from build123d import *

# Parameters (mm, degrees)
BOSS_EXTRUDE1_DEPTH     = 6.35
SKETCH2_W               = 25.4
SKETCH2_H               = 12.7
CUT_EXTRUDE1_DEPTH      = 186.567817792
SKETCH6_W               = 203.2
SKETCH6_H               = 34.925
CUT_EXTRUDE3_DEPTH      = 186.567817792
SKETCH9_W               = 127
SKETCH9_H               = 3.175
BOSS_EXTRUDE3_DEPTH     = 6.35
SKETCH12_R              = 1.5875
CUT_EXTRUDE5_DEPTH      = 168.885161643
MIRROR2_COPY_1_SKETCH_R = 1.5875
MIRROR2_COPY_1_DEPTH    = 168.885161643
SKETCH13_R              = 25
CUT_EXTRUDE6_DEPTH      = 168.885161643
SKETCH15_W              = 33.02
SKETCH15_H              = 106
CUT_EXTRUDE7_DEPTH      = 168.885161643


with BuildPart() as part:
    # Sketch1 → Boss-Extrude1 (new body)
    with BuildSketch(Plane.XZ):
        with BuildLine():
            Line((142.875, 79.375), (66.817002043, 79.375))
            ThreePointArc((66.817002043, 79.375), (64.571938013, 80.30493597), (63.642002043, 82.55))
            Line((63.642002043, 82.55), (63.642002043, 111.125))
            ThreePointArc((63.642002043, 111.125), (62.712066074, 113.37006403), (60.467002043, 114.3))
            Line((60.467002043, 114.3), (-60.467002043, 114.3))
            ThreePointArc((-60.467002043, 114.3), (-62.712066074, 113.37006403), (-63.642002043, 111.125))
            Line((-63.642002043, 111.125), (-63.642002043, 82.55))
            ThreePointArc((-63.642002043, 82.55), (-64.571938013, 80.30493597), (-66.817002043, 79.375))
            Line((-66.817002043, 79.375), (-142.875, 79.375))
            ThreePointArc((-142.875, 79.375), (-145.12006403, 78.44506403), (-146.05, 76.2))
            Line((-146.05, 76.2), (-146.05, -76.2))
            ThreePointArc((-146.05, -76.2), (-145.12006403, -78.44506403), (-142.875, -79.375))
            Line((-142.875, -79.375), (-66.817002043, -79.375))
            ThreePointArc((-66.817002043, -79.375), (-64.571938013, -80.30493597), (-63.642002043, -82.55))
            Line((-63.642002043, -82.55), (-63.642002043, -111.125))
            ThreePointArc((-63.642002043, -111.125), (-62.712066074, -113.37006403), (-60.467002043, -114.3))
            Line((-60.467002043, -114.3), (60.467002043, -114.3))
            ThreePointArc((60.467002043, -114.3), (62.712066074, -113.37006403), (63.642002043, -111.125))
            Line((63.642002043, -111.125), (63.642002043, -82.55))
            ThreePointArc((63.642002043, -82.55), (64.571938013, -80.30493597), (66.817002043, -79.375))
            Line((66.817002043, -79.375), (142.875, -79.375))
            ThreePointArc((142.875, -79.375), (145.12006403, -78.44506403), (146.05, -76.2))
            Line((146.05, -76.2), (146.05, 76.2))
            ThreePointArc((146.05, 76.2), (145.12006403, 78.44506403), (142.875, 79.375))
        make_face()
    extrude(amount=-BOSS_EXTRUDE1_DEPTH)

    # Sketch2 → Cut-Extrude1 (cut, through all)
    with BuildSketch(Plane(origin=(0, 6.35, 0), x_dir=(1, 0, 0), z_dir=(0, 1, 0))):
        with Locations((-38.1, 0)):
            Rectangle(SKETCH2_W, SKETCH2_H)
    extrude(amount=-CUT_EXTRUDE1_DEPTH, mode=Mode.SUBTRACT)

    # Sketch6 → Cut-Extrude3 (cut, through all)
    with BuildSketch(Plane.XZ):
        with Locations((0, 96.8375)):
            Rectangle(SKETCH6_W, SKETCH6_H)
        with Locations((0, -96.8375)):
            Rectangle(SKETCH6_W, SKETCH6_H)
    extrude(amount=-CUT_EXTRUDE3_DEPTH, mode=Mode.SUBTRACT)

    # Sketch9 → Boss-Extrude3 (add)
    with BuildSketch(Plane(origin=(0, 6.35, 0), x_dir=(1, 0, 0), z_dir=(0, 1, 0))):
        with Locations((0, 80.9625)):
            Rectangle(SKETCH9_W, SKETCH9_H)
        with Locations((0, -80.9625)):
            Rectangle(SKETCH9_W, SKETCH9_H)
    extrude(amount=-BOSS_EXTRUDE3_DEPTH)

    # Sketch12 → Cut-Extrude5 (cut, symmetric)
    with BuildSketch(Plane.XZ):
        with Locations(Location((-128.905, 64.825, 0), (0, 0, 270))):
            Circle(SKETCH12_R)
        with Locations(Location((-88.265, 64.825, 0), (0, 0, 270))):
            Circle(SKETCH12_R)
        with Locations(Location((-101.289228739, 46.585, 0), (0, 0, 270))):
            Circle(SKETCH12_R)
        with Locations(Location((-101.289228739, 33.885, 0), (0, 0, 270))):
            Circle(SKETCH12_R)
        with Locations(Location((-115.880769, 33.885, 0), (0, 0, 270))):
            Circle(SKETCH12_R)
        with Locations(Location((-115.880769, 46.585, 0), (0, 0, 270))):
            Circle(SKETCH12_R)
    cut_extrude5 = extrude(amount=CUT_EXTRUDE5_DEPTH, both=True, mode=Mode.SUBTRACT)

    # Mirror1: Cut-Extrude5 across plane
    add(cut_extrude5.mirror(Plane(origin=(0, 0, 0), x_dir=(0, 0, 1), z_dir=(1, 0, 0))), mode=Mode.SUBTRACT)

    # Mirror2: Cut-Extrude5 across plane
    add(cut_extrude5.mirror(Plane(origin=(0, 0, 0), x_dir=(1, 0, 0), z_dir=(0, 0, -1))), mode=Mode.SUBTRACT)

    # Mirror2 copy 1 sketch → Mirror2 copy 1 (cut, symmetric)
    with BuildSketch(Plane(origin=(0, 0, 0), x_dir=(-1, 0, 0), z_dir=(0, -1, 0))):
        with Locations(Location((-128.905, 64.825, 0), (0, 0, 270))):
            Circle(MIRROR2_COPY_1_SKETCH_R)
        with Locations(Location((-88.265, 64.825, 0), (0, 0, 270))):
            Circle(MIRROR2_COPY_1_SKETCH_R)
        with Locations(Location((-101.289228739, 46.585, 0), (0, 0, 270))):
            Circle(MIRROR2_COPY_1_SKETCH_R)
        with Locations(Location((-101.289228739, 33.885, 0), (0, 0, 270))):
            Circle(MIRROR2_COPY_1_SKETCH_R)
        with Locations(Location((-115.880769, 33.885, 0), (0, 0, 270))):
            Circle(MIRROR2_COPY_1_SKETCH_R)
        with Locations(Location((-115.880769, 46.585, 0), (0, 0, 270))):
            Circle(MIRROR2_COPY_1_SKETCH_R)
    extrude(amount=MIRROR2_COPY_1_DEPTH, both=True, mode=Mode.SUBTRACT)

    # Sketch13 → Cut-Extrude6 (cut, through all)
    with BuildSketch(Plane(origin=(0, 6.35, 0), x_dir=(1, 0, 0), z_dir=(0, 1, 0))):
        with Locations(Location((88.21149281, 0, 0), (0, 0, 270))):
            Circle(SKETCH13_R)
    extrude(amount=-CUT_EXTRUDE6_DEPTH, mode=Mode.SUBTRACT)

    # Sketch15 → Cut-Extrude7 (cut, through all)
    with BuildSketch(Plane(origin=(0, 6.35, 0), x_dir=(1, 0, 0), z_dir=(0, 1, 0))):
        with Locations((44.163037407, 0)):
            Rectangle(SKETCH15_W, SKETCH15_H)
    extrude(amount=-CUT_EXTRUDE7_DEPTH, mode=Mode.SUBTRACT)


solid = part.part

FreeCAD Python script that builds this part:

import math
import FreeCAD as App
import Part
import Sketcher
Q = App.Units.Quantity

doc = App.newDocument("Part")
body = doc.addObject("PartDesign::Body", "Body")

sketch1 = body.newObject("Sketcher::SketchObject", "Sketch")
sketch1.AttachmentSupport = (doc.getObject("XZ_Plane"), [""])
sketch1.MapMode = "FlatFace"
sketch1.addGeometry([
    Part.LineSegment(App.Vector(142.9, 79.4, 0), App.Vector(66.8, 79.4, 0)),
    Part.ArcOfCircle(Part.Circle(App.Vector(66.8, 82.6, 0), App.Vector(0, 0, 1), 3.2), math.radians(-180), math.radians(-90)),
    Part.LineSegment(App.Vector(63.6, 82.5, 0), App.Vector(63.6, 111.1, 0)),
    Part.ArcOfCircle(Part.Circle(App.Vector(60.5, 111.1, 0), App.Vector(0, 0, 1), 3.2), math.radians(0), math.radians(90)),
    Part.LineSegment(App.Vector(60.5, 114.3, 0), App.Vector(-60.5, 114.3, 0)),
    Part.ArcOfCircle(Part.Circle(App.Vector(-60.5, 111.1, 0), App.Vector(0, 0, 1), 3.2), math.radians(90), math.radians(180)),
    Part.LineSegment(App.Vector(-63.6, 111.1, 0), App.Vector(-63.6, 82.5, 0)),
    Part.ArcOfCircle(Part.Circle(App.Vector(-66.8, 82.6, 0), App.Vector(0, 0, 1), 3.2), math.radians(-90), math.radians(0)),
    Part.LineSegment(App.Vector(-66.8, 79.4, 0), App.Vector(-142.9, 79.4, 0)),
    Part.ArcOfCircle(Part.Circle(App.Vector(-142.9, 76.2, 0), App.Vector(0, 0, 1), 3.2), math.radians(90), math.radians(180)),
    Part.LineSegment(App.Vector(-146.1, 76.2, 0), App.Vector(-146.1, -76.2, 0)),
    Part.ArcOfCircle(Part.Circle(App.Vector(-142.9, -76.2, 0), App.Vector(0, 0, 1), 3.2), math.radians(-180), math.radians(-90)),
    Part.LineSegment(App.Vector(-142.9, -79.4, 0), App.Vector(-66.8, -79.4, 0)),
    Part.ArcOfCircle(Part.Circle(App.Vector(-66.8, -82.6, 0), App.Vector(0, 0, 1), 3.2), math.radians(0), math.radians(90)),
    Part.LineSegment(App.Vector(-63.6, -82.5, 0), App.Vector(-63.6, -111.1, 0)),
    Part.ArcOfCircle(Part.Circle(App.Vector(-60.5, -111.1, 0), App.Vector(0, 0, 1), 3.2), math.radians(180), math.radians(270)),
    Part.LineSegment(App.Vector(-60.5, -114.3, 0), App.Vector(60.5, -114.3, 0)),
    Part.ArcOfCircle(Part.Circle(App.Vector(60.5, -111.1, 0), App.Vector(0, 0, 1), 3.2), math.radians(-90), math.radians(0)),
    Part.LineSegment(App.Vector(63.6, -111.1, 0), App.Vector(63.6, -82.5, 0)),
    Part.ArcOfCircle(Part.Circle(App.Vector(66.8, -82.6, 0), App.Vector(0, 0, 1), 3.2), math.radians(90), math.radians(180)),
    Part.LineSegment(App.Vector(66.8, -79.4, 0), App.Vector(142.9, -79.4, 0)),
    Part.ArcOfCircle(Part.Circle(App.Vector(142.9, -76.2, 0), App.Vector(0, 0, 1), 3.2), math.radians(-90), math.radians(0)),
    Part.LineSegment(App.Vector(146.1, -76.2, 0), App.Vector(146.1, 76.2, 0)),
    Part.ArcOfCircle(Part.Circle(App.Vector(142.9, 76.2, 0), App.Vector(0, 0, 1), 3.2), math.radians(0), math.radians(90)),
], False)
sketch1.addConstraint([
    Sketcher.Constraint("Tangent", 0, 2, 1, 2),
    Sketcher.Constraint("Tangent", 1, 1, 2, 1),
    Sketcher.Constraint("Tangent", 2, 2, 3, 1),
    Sketcher.Constraint("Tangent", 3, 2, 4, 1),
    Sketcher.Constraint("Tangent", 4, 2, 5, 1),
    Sketcher.Constraint("Tangent", 5, 2, 6, 1),
    Sketcher.Constraint("Tangent", 6, 2, 7, 2),
    Sketcher.Constraint("Tangent", 7, 1, 8, 1),
    Sketcher.Constraint("Tangent", 8, 2, 9, 1),
    Sketcher.Constraint("Tangent", 9, 2, 10, 1),
    Sketcher.Constraint("Tangent", 10, 2, 11, 1),
    Sketcher.Constraint("Tangent", 11, 2, 12, 1),
    Sketcher.Constraint("Tangent", 12, 2, 13, 2),
    Sketcher.Constraint("Tangent", 13, 1, 14, 1),
    Sketcher.Constraint("Tangent", 14, 2, 15, 1),
    Sketcher.Constraint("Tangent", 15, 2, 16, 1),
    Sketcher.Constraint("Tangent", 16, 2, 17, 1),
    Sketcher.Constraint("Tangent", 17, 2, 18, 1),
    Sketcher.Constraint("Tangent", 18, 2, 19, 2),
    Sketcher.Constraint("Tangent", 19, 1, 20, 1),
    Sketcher.Constraint("Tangent", 20, 2, 21, 1),
    Sketcher.Constraint("Tangent", 21, 2, 22, 1),
    Sketcher.Constraint("Tangent", 22, 2, 23, 1),
    Sketcher.Constraint("Tangent", 23, 2, 0, 1),
    Sketcher.Constraint("Horizontal", 0),
    Sketcher.Constraint("Vertical", 2),
    Sketcher.Constraint("Horizontal", 4),
    Sketcher.Constraint("Vertical", 6),
    Sketcher.Constraint("Horizontal", 8),
    Sketcher.Constraint("Vertical", 10),
    Sketcher.Constraint("Horizontal", 12),
    Sketcher.Constraint("Vertical", 14),
    Sketcher.Constraint("Horizontal", 16),
    Sketcher.Constraint("Vertical", 18),
    Sketcher.Constraint("Horizontal", 20),
    Sketcher.Constraint("Vertical", 22),
    Sketcher.Constraint("Equal", 1, 3),
    Sketcher.Constraint("Equal", 3, 5),
    Sketcher.Constraint("Equal", 5, 7),
    Sketcher.Constraint("Equal", 7, 9),
    Sketcher.Constraint("Equal", 9, 11),
    Sketcher.Constraint("Equal", 11, 13),
    Sketcher.Constraint("Equal", 13, 15),
    Sketcher.Constraint("Equal", 15, 17),
    Sketcher.Constraint("Equal", 17, 19),
    Sketcher.Constraint("Equal", 19, 21),
    Sketcher.Constraint("Equal", 21, 23),
    Sketcher.Constraint("Symmetric", 1, 3, 13, 3, -1, 1),
    Sketcher.Constraint("Symmetric", 5, 3, 17, 3, -1, 1),
    Sketcher.Constraint("Symmetric", 9, 3, 21, 3, -1, 1),
    Sketcher.Constraint("Symmetric", 1, 3, 7, 3, -2),
    Sketcher.Constraint("DistanceY", 10, 2, 10, 1, Q("6 in")),
    Sketcher.Constraint("Radius", 1, Q("0.125 in")),
    Sketcher.Constraint("DistanceY", -1, 1, 3, 2, Q("4.5 in")),
    Sketcher.Constraint("DistanceX", 9, 2, -1, 1, Q("5.75 in")),
    Sketcher.Constraint("DistanceX", 0, 2, 0, 1, Q("76.057998 mm")),
])
pad1 = body.newObject("PartDesign::Pad", "Pad")
pad1.Profile = sketch1
pad1.Length = Q("0.25 in")
pad1.Reversed = True

sketch2 = body.newObject("Sketcher::SketchObject", "Sketch001")
sketch2.AttachmentSupport = (doc.getObject("XZ_Plane"), [""])
sketch2.MapMode = "FlatFace"
sketch2.AttachmentOffset = App.Placement(App.Vector(0, 0, -0.25 * 25.4), App.Rotation())
sketch2.addGeometry([
    Part.LineSegment(App.Vector(-51, -6, 0), App.Vector(-51, 6, 0)),
    Part.LineSegment(App.Vector(-51, 6, 0), App.Vector(-25, 6, 0)),
    Part.LineSegment(App.Vector(-25, 6, 0), App.Vector(-25, -6, 0)),
    Part.LineSegment(App.Vector(-25, -6, 0), App.Vector(-51, -6, 0)),
], False)
sketch2.addConstraint([
    Sketcher.Constraint("Coincident", 0, 2, 1, 1),
    Sketcher.Constraint("Coincident", 1, 2, 2, 1),
    Sketcher.Constraint("Coincident", 2, 2, 3, 1),
    Sketcher.Constraint("Coincident", 3, 2, 0, 1),
    Sketcher.Constraint("Vertical", 0),
    Sketcher.Constraint("Horizontal", 1),
    Sketcher.Constraint("Vertical", 2),
    Sketcher.Constraint("Horizontal", 3),
    Sketcher.Constraint("DistanceX", 1, 1, 1, 2, Q("1 in")),
    Sketcher.Constraint("DistanceY", 0, 1, 0, 2, Q("0.5 in")),
    Sketcher.Constraint("DistanceX", 0, 2, -1, 1, Q("2 in")),
    Sketcher.Constraint("DistanceY", -1, 1, 0, 2, Q("0.25 in")),
])
pocket1 = body.newObject("PartDesign::Pocket", "Pocket")
pocket1.Profile = sketch2
pocket1.Type = "ThroughAll"
pocket1.Reversed = True

sketch3 = body.newObject("Sketcher::SketchObject", "Sketch002")
sketch3.AttachmentSupport = (doc.getObject("XZ_Plane"), [""])
sketch3.MapMode = "FlatFace"
sketch3.addGeometry([
    Part.LineSegment(App.Vector(-102, 114, 0), App.Vector(-102, 79, 0)),
    Part.LineSegment(App.Vector(-102, 79, 0), App.Vector(102, 79, 0)),
    Part.LineSegment(App.Vector(102, 79, 0), App.Vector(102, 114, 0)),
    Part.LineSegment(App.Vector(102, 114, 0), App.Vector(-102, 114, 0)),
    Part.LineSegment(App.Vector(-102, -79, 0), App.Vector(-102, -114, 0)),
    Part.LineSegment(App.Vector(-102, -114, 0), App.Vector(102, -114, 0)),
    Part.LineSegment(App.Vector(102, -114, 0), App.Vector(102, -79, 0)),
    Part.LineSegment(App.Vector(102, -79, 0), App.Vector(-102, -79, 0)),
], False)
sketch3.addConstraint([
    Sketcher.Constraint("Coincident", 0, 2, 1, 1),
    Sketcher.Constraint("Coincident", 1, 2, 2, 1),
    Sketcher.Constraint("Coincident", 2, 2, 3, 1),
    Sketcher.Constraint("Coincident", 3, 2, 0, 1),
    Sketcher.Constraint("Coincident", 4, 2, 5, 1),
    Sketcher.Constraint("Coincident", 5, 2, 6, 1),
    Sketcher.Constraint("Coincident", 6, 2, 7, 1),
    Sketcher.Constraint("Coincident", 7, 2, 4, 1),
    Sketcher.Constraint("Vertical", 0),
    Sketcher.Constraint("Horizontal", 1),
    Sketcher.Constraint("Vertical", 2),
    Sketcher.Constraint("Horizontal", 3),
    Sketcher.Constraint("Vertical", 4),
    Sketcher.Constraint("Horizontal", 5),
    Sketcher.Constraint("Vertical", 6),
    Sketcher.Constraint("Horizontal", 7),
    Sketcher.Constraint("Symmetric", 2, 2, 4, 2, -1, 1),
    Sketcher.Constraint("Symmetric", 0, 2, 6, 2, -1, 1),
    Sketcher.Constraint("Vertical", 3, 2, 4, 2),
    Sketcher.Constraint("DistanceX", 1, 1, 1, 2, Q("8 in")),
    Sketcher.Constraint("DistanceY", 4, 2, 3, 2, Q("9 in")),
    Sketcher.Constraint("DistanceY", 0, 2, 0, 1, Q("1.375 in")),
])
pocket2 = body.newObject("PartDesign::Pocket", "Pocket001")
pocket2.Profile = sketch3
pocket2.Type = "ThroughAll"

sketch4 = body.newObject("Sketcher::SketchObject", "Sketch003")
sketch4.AttachmentSupport = (doc.getObject("XZ_Plane"), [""])
sketch4.MapMode = "FlatFace"
sketch4.AttachmentOffset = App.Placement(App.Vector(0, 0, -0.25 * 25.4), App.Rotation())
sketch4.addGeometry([
    Part.LineSegment(App.Vector(-63.5, -82.5, 0), App.Vector(-63.5, -79.4, 0)),
    Part.LineSegment(App.Vector(-63.5, -79.4, 0), App.Vector(63.5, -79.4, 0)),
    Part.LineSegment(App.Vector(63.5, -79.4, 0), App.Vector(63.5, -82.5, 0)),
    Part.LineSegment(App.Vector(63.5, -82.5, 0), App.Vector(-63.5, -82.5, 0)),
    Part.LineSegment(App.Vector(-63.5, 79.4, 0), App.Vector(-63.5, 82.5, 0)),
    Part.LineSegment(App.Vector(-63.5, 82.5, 0), App.Vector(63.5, 82.5, 0)),
    Part.LineSegment(App.Vector(63.5, 82.5, 0), App.Vector(63.5, 79.4, 0)),
    Part.LineSegment(App.Vector(63.5, 79.4, 0), App.Vector(-63.5, 79.4, 0)),
], False)
sketch4.addConstraint([
    Sketcher.Constraint("Coincident", 0, 2, 1, 1),
    Sketcher.Constraint("Coincident", 1, 2, 2, 1),
    Sketcher.Constraint("Coincident", 2, 2, 3, 1),
    Sketcher.Constraint("Coincident", 3, 2, 0, 1),
    Sketcher.Constraint("Coincident", 4, 2, 5, 1),
    Sketcher.Constraint("Coincident", 5, 2, 6, 1),
    Sketcher.Constraint("Coincident", 6, 2, 7, 1),
    Sketcher.Constraint("Coincident", 7, 2, 4, 1),
    Sketcher.Constraint("Vertical", 0),
    Sketcher.Constraint("Horizontal", 1),
    Sketcher.Constraint("Vertical", 2),
    Sketcher.Constraint("Horizontal", 3),
    Sketcher.Constraint("Vertical", 4),
    Sketcher.Constraint("Horizontal", 5),
    Sketcher.Constraint("Vertical", 6),
    Sketcher.Constraint("Horizontal", 7),
    Sketcher.Constraint("Symmetric", 2, 2, 4, 2, -1, 1),
    Sketcher.Constraint("Symmetric", 0, 2, 6, 2, -1, 1),
    Sketcher.Constraint("Vertical", 3, 2, 4, 2),
    Sketcher.Constraint("DistanceX", 1, 1, 1, 2, Q("5 in")),
    Sketcher.Constraint("DistanceY", 3, 2, 4, 2, Q("6.5 in")),
    Sketcher.Constraint("DistanceY", 0, 1, 0, 2, Q("0.125 in")),
])
pad2 = body.newObject("PartDesign::Pad", "Pad001")
pad2.Profile = sketch4
pad2.Length = Q("0.25 in")

sketch5 = body.newObject("Sketcher::SketchObject", "Sketch004")
sketch5.AttachmentSupport = (doc.getObject("XZ_Plane"), [""])
sketch5.MapMode = "FlatFace"
sketch5.addGeometry([
    Part.Circle(App.Vector(-128.9, 64.8, 0), App.Vector(0, 0, 1), 1.6),
    Part.Circle(App.Vector(-88.3, 64.8, 0), App.Vector(0, 0, 1), 1.6),
    Part.Circle(App.Vector(-101.3, 46.6, 0), App.Vector(0, 0, 1), 1.6),
    Part.Circle(App.Vector(-101.3, 33.9, 0), App.Vector(0, 0, 1), 1.6),
    Part.Circle(App.Vector(-115.9, 33.9, 0), App.Vector(0, 0, 1), 1.6),
    Part.Circle(App.Vector(-115.9, 46.6, 0), App.Vector(0, 0, 1), 1.6),
], False)
sketch5.addConstraint([
    Sketcher.Constraint("Equal", 0, 1),
    Sketcher.Constraint("Equal", 1, 2),
    Sketcher.Constraint("Equal", 2, 3),
    Sketcher.Constraint("Equal", 3, 4),
    Sketcher.Constraint("Equal", 4, 5),
    Sketcher.Constraint("Horizontal", 0, 3, 1, 3),
    Sketcher.Constraint("Horizontal", 3, 3, 4, 3),
    Sketcher.Constraint("Horizontal", 2, 3, 5, 3),
    Sketcher.Constraint("Vertical", 2, 3, 3, 3),
    Sketcher.Constraint("Vertical", 4, 3, 5, 3),
    Sketcher.Constraint("Diameter", 0, Q("0.125 in")),
    Sketcher.Constraint("DistanceX", 0, 3, 1, 3, Q("1.6 in")),
    Sketcher.Constraint("DistanceY", 3, 3, 2, 3, Q("0.5 in")),
    Sketcher.Constraint("DistanceX", 0, 3, -1, 1, Q("5.075 in")),
    Sketcher.Constraint("DistanceY", -1, 1, 0, 3, Q("64.825 mm")),
    Sketcher.Constraint("DistanceY", -1, 1, 2, 3, Q("46.585 mm")),
    Sketcher.Constraint("DistanceX", 2, 3, -1, 1, Q("101.289229 mm")),
    Sketcher.Constraint("DistanceX", 4, 3, -1, 1, Q("115.880769 mm")),
])
pocket3 = body.newObject("PartDesign::Pocket", "Pocket002")
pocket3.Profile = sketch5
pocket3.Length = 337.770323
pocket3.Midplane = True
doc.recompute()

mirrored = body.newObject("PartDesign::Mirrored", "Mirrored")
mirrored.Originals = [pocket3]
mirrored.MirrorPlane = (doc.getObject("YZ_Plane"), [""])
body.Tip = mirrored
doc.recompute()

mirrored2 = body.newObject("PartDesign::Mirrored", "Mirrored001")
mirrored2.Originals = [pocket3]
mirrored2.MirrorPlane = (doc.getObject("XY_Plane"), [""])
body.Tip = mirrored2

sketch6 = body.newObject("Sketcher::SketchObject", "Sketch005")
sketch6.AttachmentSupport = (doc.getObject("XZ_Plane"), [""])
sketch6.MapMode = "FlatFace"
sketch6.addGeometry([
    Part.Circle(App.Vector(128.9, -64.8, 0), App.Vector(0, 0, 1), 1.6),
    Part.Circle(App.Vector(88.3, -64.8, 0), App.Vector(0, 0, 1), 1.6),
    Part.Circle(App.Vector(101.3, -46.6, 0), App.Vector(0, 0, 1), 1.6),
    Part.Circle(App.Vector(101.3, -33.9, 0), App.Vector(0, 0, 1), 1.6),
    Part.Circle(App.Vector(115.9, -33.9, 0), App.Vector(0, 0, 1), 1.6),
    Part.Circle(App.Vector(115.9, -46.6, 0), App.Vector(0, 0, 1), 1.6),
], False)
sketch6.addConstraint([
    Sketcher.Constraint("Equal", 0, 1),
    Sketcher.Constraint("Equal", 1, 2),
    Sketcher.Constraint("Equal", 2, 3),
    Sketcher.Constraint("Equal", 3, 4),
    Sketcher.Constraint("Equal", 4, 5),
    Sketcher.Constraint("Horizontal", 0, 3, 1, 3),
    Sketcher.Constraint("Horizontal", 3, 3, 4, 3),
    Sketcher.Constraint("Horizontal", 2, 3, 5, 3),
    Sketcher.Constraint("Vertical", 2, 3, 3, 3),
    Sketcher.Constraint("Vertical", 4, 3, 5, 3),
    Sketcher.Constraint("Diameter", 0, Q("0.125 in")),
    Sketcher.Constraint("DistanceX", 1, 3, 0, 3, Q("1.6 in")),
    Sketcher.Constraint("DistanceY", 2, 3, 3, 3, Q("0.5 in")),
    Sketcher.Constraint("DistanceX", -1, 1, 0, 3, Q("5.075 in")),
    Sketcher.Constraint("DistanceY", 0, 3, -1, 1, Q("64.825 mm")),
    Sketcher.Constraint("DistanceY", 2, 3, -1, 1, Q("46.585 mm")),
    Sketcher.Constraint("DistanceX", -1, 1, 2, 3, Q("101.289229 mm")),
    Sketcher.Constraint("DistanceX", -1, 1, 4, 3, Q("115.880769 mm")),
])
pocket4 = body.newObject("PartDesign::Pocket", "Pocket003")
pocket4.Profile = sketch6
pocket4.Length = 337.770323
pocket4.Midplane = True

sketch7 = body.newObject("Sketcher::SketchObject", "Sketch006")
sketch7.AttachmentSupport = (doc.getObject("XZ_Plane"), [""])
sketch7.MapMode = "FlatFace"
sketch7.AttachmentOffset = App.Placement(App.Vector(0, 0, -0.25 * 25.4), App.Rotation())
sketch7.addGeometry(Part.Circle(App.Vector(88, 0, 0), App.Vector(0, 0, 1), 25), False)
sketch7.addConstraint([
    Sketcher.Constraint("PointOnObject", 0, 3, -1),
    Sketcher.Constraint("Diameter", 0, Q("50 mm")),
    Sketcher.Constraint("DistanceX", -1, 1, 0, 3, Q("88.211493 mm")),
])
pocket5 = body.newObject("PartDesign::Pocket", "Pocket004")
pocket5.Profile = sketch7
pocket5.Type = "ThroughAll"
pocket5.Reversed = True

sketch8 = body.newObject("Sketcher::SketchObject", "Sketch007")
sketch8.AttachmentSupport = (doc.getObject("XZ_Plane"), [""])
sketch8.MapMode = "FlatFace"
sketch8.AttachmentOffset = App.Placement(App.Vector(0, 0, -0.25 * 25.4), App.Rotation())
sketch8.addGeometry([
    Part.LineSegment(App.Vector(28, -53, 0), App.Vector(28, 53, 0)),
    Part.LineSegment(App.Vector(28, 53, 0), App.Vector(61, 53, 0)),
    Part.LineSegment(App.Vector(61, 53, 0), App.Vector(61, -53, 0)),
    Part.LineSegment(App.Vector(61, -53, 0), App.Vector(28, -53, 0)),
], False)
sketch8.addConstraint([
    Sketcher.Constraint("Coincident", 0, 2, 1, 1),
    Sketcher.Constraint("Coincident", 1, 2, 2, 1),
    Sketcher.Constraint("Coincident", 2, 2, 3, 1),
    Sketcher.Constraint("Coincident", 3, 2, 0, 1),
    Sketcher.Constraint("Vertical", 0),
    Sketcher.Constraint("Horizontal", 1),
    Sketcher.Constraint("Vertical", 2),
    Sketcher.Constraint("Horizontal", 3),
    Sketcher.Constraint("DistanceX", 1, 1, 1, 2, Q("1.3 in")),
    Sketcher.Constraint("DistanceY", 0, 1, 0, 2, Q("106 mm")),
    Sketcher.Constraint("DistanceY", -1, 1, 0, 2, Q("53 mm")),
    Sketcher.Constraint("DistanceX", -1, 1, 0, 2, Q("27.653037 mm")),
])
pocket6 = body.newObject("PartDesign::Pocket", "Pocket005")
pocket6.Profile = sketch8
pocket6.Type = "ThroughAll"
pocket6.Reversed = True

doc.recompute()
